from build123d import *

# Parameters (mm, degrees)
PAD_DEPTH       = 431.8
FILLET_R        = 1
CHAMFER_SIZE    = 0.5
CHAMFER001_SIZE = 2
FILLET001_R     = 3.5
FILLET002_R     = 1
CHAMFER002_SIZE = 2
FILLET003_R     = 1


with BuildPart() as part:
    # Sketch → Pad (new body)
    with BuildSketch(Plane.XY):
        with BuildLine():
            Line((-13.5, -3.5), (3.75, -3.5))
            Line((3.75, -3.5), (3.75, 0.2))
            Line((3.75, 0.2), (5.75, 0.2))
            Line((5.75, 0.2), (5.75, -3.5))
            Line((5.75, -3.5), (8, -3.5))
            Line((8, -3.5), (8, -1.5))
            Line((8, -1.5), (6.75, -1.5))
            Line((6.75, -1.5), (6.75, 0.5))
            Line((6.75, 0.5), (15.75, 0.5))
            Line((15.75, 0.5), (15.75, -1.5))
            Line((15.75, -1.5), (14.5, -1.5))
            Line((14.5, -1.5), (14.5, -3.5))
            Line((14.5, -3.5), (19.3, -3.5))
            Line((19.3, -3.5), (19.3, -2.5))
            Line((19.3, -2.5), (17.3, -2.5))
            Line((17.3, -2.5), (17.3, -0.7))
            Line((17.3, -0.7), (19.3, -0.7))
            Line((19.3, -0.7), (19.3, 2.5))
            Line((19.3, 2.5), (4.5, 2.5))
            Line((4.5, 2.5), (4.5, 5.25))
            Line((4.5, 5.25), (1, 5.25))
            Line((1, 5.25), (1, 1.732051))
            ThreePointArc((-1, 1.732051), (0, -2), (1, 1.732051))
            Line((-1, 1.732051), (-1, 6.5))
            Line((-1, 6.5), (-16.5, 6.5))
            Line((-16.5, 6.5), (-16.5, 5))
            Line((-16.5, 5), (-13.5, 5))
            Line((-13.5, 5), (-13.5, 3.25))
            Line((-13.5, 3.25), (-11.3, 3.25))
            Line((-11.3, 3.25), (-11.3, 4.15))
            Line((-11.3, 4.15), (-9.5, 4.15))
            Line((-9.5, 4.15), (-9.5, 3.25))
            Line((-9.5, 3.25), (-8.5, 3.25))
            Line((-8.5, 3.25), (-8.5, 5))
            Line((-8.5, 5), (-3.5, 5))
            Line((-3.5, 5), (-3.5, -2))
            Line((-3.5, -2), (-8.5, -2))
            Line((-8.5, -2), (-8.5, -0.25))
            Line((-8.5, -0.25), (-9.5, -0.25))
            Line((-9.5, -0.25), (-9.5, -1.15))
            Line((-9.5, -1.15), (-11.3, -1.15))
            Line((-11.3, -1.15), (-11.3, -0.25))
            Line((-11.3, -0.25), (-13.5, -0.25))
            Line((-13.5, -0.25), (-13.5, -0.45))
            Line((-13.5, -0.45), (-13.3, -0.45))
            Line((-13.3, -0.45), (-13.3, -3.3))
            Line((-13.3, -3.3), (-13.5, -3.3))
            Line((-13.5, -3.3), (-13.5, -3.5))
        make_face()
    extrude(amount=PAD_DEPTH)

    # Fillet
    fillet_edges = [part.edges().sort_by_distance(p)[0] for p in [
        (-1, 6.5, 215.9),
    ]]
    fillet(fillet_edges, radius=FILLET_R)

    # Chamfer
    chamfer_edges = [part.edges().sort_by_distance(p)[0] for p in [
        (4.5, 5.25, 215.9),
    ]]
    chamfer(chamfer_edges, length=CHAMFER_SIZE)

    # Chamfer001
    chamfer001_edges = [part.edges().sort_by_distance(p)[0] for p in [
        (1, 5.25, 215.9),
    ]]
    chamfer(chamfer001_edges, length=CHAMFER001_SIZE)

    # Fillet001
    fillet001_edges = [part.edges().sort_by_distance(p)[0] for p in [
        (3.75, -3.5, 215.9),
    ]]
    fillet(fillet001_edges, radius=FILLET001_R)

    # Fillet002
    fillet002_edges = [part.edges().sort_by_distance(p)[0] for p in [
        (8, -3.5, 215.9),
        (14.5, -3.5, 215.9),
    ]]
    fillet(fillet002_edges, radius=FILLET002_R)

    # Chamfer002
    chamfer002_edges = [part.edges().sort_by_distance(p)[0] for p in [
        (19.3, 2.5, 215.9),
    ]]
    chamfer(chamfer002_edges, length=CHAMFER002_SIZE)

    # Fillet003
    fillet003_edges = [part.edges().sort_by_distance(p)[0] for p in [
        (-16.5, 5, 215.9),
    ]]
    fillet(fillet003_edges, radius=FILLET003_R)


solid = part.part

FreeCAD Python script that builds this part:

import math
import FreeCAD as App
import Part
import Sketcher

V = App.Vector
Q = App.Units.Quantity


def edges_at(feature, points):
    """Names of the edges that pass closest to the given points."""
    edges = feature.Shape.Edges
    near = lambda p: min(range(len(edges)), key=lambda i: edges[i].distToShape(Part.Vertex(*p))[0])
    return sorted({f"Edge{near(p) + 1}" for p in points})

doc = App.newDocument("Part")
body = doc.addObject("PartDesign::Body", "Body")

# Sketch on XY plane
sketch1 = body.newObject("Sketcher::SketchObject", "Sketch")
sketch1.AttachmentSupport = (doc.getObject("XY_Plane"), [""])
sketch1.MapMode = "FlatFace"
sketch1.addGeometry(Part.LineSegment(V(-13.5, -3.5, 0), V(3.75, -3.5, 0)), False)
sketch1.addGeometry(Part.LineSegment(V(3.75, -3.5, 0), V(3.75, 0.2, 0)), False)
sketch1.addGeometry(Part.LineSegment(V(3.75, 0.2, 0), V(5.75, 0.2, 0)), False)
sketch1.addGeometry(Part.LineSegment(V(5.75, 0.2, 0), V(5.75, -3.5, 0)), False)
sketch1.addGeometry(Part.LineSegment(V(5.75, -3.5, 0), V(8, -3.5, 0)), False)
sketch1.addGeometry(Part.LineSegment(V(8, -3.5, 0), V(8, -1.5, 0)), False)
sketch1.addGeometry(Part.LineSegment(V(8, -1.5, 0), V(6.75, -1.5, 0)), False)
sketch1.addGeometry(Part.LineSegment(V(6.75, -1.5, 0), V(6.75, 0.5, 0)), False)
sketch1.addGeometry(Part.LineSegment(V(6.75, 0.5, 0), V(15.75, 0.5, 0)), False)
sketch1.addGeometry(Part.LineSegment(V(15.75, 0.5, 0), V(15.75, -1.5, 0)), False)
sketch1.addGeometry(Part.LineSegment(V(15.75, -1.5, 0), V(14.5, -1.5, 0)), False)
sketch1.addGeometry(Part.LineSegment(V(14.5, -1.5, 0), V(14.5, -3.5, 0)), False)
sketch1.addGeometry(Part.LineSegment(V(14.5, -3.5, 0), V(19.3, -3.5, 0)), False)
sketch1.addGeometry(Part.LineSegment(V(19.3, -3.5, 0), V(19.3, -2.5, 0)), False)
sketch1.addGeometry(Part.LineSegment(V(19.3, -2.5, 0), V(17.3, -2.5, 0)), False)
sketch1.addGeometry(Part.LineSegment(V(17.3, -2.5, 0), V(17.3, -0.7, 0)), False)
sketch1.addGeometry(Part.LineSegment(V(17.3, -0.7, 0), V(19.3, -0.7, 0)), False)
sketch1.addGeometry(Part.LineSegment(V(19.3, -0.7, 0), V(19.3, 2.5, 0)), False)
sketch1.addGeometry(Part.LineSegment(V(19.3, 2.5, 0), V(4.5, 2.5, 0)), False)
sketch1.addGeometry(Part.LineSegment(V(4.5, 2.5, 0), V(4.5, 5.25, 0)), False)
sketch1.addGeometry(Part.LineSegment(V(4.5, 5.25, 0), V(1, 5.25, 0)), False)
sketch1.addGeometry(Part.LineSegment(V(1, 5.25, 0), V(1, 1.73, 0)), False)
sketch1.addGeometry(Part.ArcOfCircle(Part.Circle(V(0, 0, 0), V(0, 0, 1), 2), math.radians(120), math.radians(420)), False)
sketch1.addGeometry(Part.LineSegment(V(-1, 1.73, 0), V(-1, 6.5, 0)), False)
sketch1.addGeometry(Part.LineSegment(V(-1, 6.5, 0), V(-16.5, 6.5, 0)), False)
sketch1.addGeometry(Part.LineSegment(V(-16.5, 6.5, 0), V(-16.5, 5, 0)), False)
sketch1.addGeometry(Part.LineSegment(V(-16.5, 5, 0), V(-13.5, 5, 0)), False)
sketch1.addGeometry(Part.LineSegment(V(-13.5, 5, 0), V(-13.5, 3.25, 0)), False)
sketch1.addGeometry(Part.LineSegment(V(-13.5, 3.25, 0), V(-11.3, 3.25, 0)), False)
sketch1.addGeometry(Part.LineSegment(V(-11.3, 3.25, 0), V(-11.3, 4.15, 0)), False)
sketch1.addGeometry(Part.LineSegment(V(-11.3, 4.15, 0), V(-9.5, 4.15, 0)), False)
sketch1.addGeometry(Part.LineSegment(V(-9.5, 4.15, 0), V(-9.5, 3.25, 0)), False)
sketch1.addGeometry(Part.LineSegment(V(-9.5, 3.25, 0), V(-8.5, 3.25, 0)), False)
sketch1.addGeometry(Part.LineSegment(V(-8.5, 3.25, 0), V(-8.5, 5, 0)), False)
sketch1.addGeometry(Part.LineSegment(V(-8.5, 5, 0), V(-3.5, 5, 0)), False)
sketch1.addGeometry(Part.LineSegment(V(-3.5, 5, 0), V(-3.5, -2, 0)), False)
sketch1.addGeometry(Part.LineSegment(V(-3.5, -2, 0), V(-8.5, -2, 0)), False)
sketch1.addGeometry(Part.LineSegment(V(-8.5, -2, 0), V(-8.5, -0.25, 0)), False)
sketch1.addGeometry(Part.LineSegment(V(-8.5, -0.25, 0), V(-9.5, -0.25, 0)), False)
sketch1.addGeometry(Part.LineSegment(V(-9.5, -0.25, 0), V(-9.5, -1.15, 0)), False)
sketch1.addGeometry(Part.LineSegment(V(-9.5, -1.15, 0), V(-11.3, -1.15, 0)), False)
sketch1.addGeometry(Part.LineSegment(V(-11.3, -1.15, 0), V(-11.3, -0.25, 0)), False)
sketch1.addGeometry(Part.LineSegment(V(-11.3, -0.25, 0), V(-13.5, -0.25, 0)), False)
sketch1.addGeometry(Part.LineSegment(V(-13.5, -0.25, 0), V(-13.5, -0.45, 0)), False)
sketch1.addGeometry(Part.LineSegment(V(-13.5, -0.45, 0), V(-13.3, -0.45, 0)), False)
sketch1.addGeometry(Part.LineSegment(V(-13.3, -0.45, 0), V(-13.3, -3.3, 0)), False)
sketch1.addGeometry(Part.LineSegment(V(-13.3, -3.3, 0), V(-13.5, -3.3, 0)), False)
sketch1.addGeometry(Part.LineSegment(V(-13.5, -3.3, 0), V(-13.5, -3.5, 0)), False)
sketch1.addConstraint(Sketcher.Constraint("Coincident", 0, 2, 1, 1))
sketch1.addConstraint(Sketcher.Constraint("Coincident", 1, 2, 2, 1))
sketch1.addConstraint(Sketcher.Constraint("Coincident", 2, 2, 3, 1))
sketch1.addConstraint(Sketcher.Constraint("Coincident", 3, 2, 4, 1))
sketch1.addConstraint(Sketcher.Constraint("Coincident", 4, 2, 5, 1))
sketch1.addConstraint(Sketcher.Constraint("Coincident", 5, 2, 6, 1))
sketch1.addConstraint(Sketcher.Constraint("Coincident", 6, 2, 7, 1))
sketch1.addConstraint(Sketcher.Constraint("Coincident", 7, 2, 8, 1))
sketch1.addConstraint(Sketcher.Constraint("Coincident", 8, 2, 9, 1))
sketch1.addConstraint(Sketcher.Constraint("Coincident", 9, 2, 10, 1))
sketch1.addConstraint(Sketcher.Constraint("Coincident", 10, 2, 11, 1))
sketch1.addConstraint(Sketcher.Constraint("Coincident", 11, 2, 12, 1))
sketch1.addConstraint(Sketcher.Constraint("Coincident", 12, 2, 13, 1))
sketch1.addConstraint(Sketcher.Constraint("Coincident", 13, 2, 14, 1))
sketch1.addConstraint(Sketcher.Constraint("Coincident", 14, 2, 15, 1))
sketch1.addConstraint(Sketcher.Constraint("Coincident", 15, 2, 16, 1))
sketch1.addConstraint(Sketcher.Constraint("Coincident", 16, 2, 17, 1))
sketch1.addConstraint(Sketcher.Constraint("Coincident", 17, 2, 18, 1))
sketch1.addConstraint(Sketcher.Constraint("Coincident", 18, 2, 19, 1))
sketch1.addConstraint(Sketcher.Constraint("Coincident", 19, 2, 20, 1))
sketch1.addConstraint(Sketcher.Constraint("Coincident", 20, 2, 21, 1))
sketch1.addConstraint(Sketcher.Constraint("Coincident", 21, 2, 22, 2))
sketch1.addConstraint(Sketcher.Constraint("Coincident", 22, 1, 23, 1))
sketch1.addConstraint(Sketcher.Constraint("Coincident", 23, 2, 24, 1))
sketch1.addConstraint(Sketcher.Constraint("Coincident", 24, 2, 25, 1))
sketch1.addConstraint(Sketcher.Constraint("Coincident", 25, 2, 26, 1))
sketch1.addConstraint(Sketcher.Constraint("Coincident", 26, 2, 27, 1))
sketch1.addConstraint(Sketcher.Constraint("Coincident", 27, 2, 28, 1))
sketch1.addConstraint(Sketcher.Constraint("Coincident", 28, 2, 29, 1))
sketch1.addConstraint(Sketcher.Constraint("Coincident", 29, 2, 30, 1))
sketch1.addConstraint(Sketcher.Constraint("Coincident", 30, 2, 31, 1))
sketch1.addConstraint(Sketcher.Constraint("Coincident", 31, 2, 32, 1))
sketch1.addConstraint(Sketcher.Constraint("Coincident", 32, 2, 33, 1))
sketch1.addConstraint(Sketcher.Constraint("Coincident", 33, 2, 34, 1))
sketch1.addConstraint(Sketcher.Constraint("Coincident", 34, 2, 35, 1))
sketch1.addConstraint(Sketcher.Constraint("Coincident", 35, 2, 36, 1))
sketch1.addConstraint(Sketcher.Constraint("Coincident", 36, 2, 37, 1))
sketch1.addConstraint(Sketcher.Constraint("Coincident", 37, 2, 38, 1))
sketch1.addConstraint(Sketcher.Constraint("Coincident", 38, 2, 39, 1))
sketch1.addConstraint(Sketcher.Constraint("Coincident", 39, 2, 40, 1))
sketch1.addConstraint(Sketcher.Constraint("Coincident", 40, 2, 41, 1))
sketch1.addConstraint(Sketcher.Constraint("Coincident", 41, 2, 42, 1))
sketch1.addConstraint(Sketcher.Constraint("Coincident", 42, 2, 43, 1))
sketch1.addConstraint(Sketcher.Constraint("Coincident", 43, 2, 44, 1))
sketch1.addConstraint(Sketcher.Constraint("Coincident", 44, 2, 45, 1))
sketch1.addConstraint(Sketcher.Constraint("Coincident", 45, 2, 46, 1))
sketch1.addConstraint(Sketcher.Constraint("Coincident", 46, 2, 47, 1))
sketch1.addConstraint(Sketcher.Constraint("Coincident", 47, 2, 0, 1))
sketch1.addConstraint(Sketcher.Constraint("Horizontal", 0))
sketch1.addConstraint(Sketcher.Constraint("Vertical", 1))
sketch1.addConstraint(Sketcher.Constraint("Horizontal", 2))
sketch1.addConstraint(Sketcher.Constraint("Vertical", 3))
sketch1.addConstraint(Sketcher.Constraint("Horizontal", 4))
sketch1.addConstraint(Sketcher.Constraint("Vertical", 5))
sketch1.addConstraint(Sketcher.Constraint("Horizontal", 6))
sketch1.addConstraint(Sketcher.Constraint("Vertical", 7))
sketch1.addConstraint(Sketcher.Constraint("Horizontal", 8))
sketch1.addConstraint(Sketcher.Constraint("Vertical", 9))
sketch1.addConstraint(Sketcher.Constraint("Horizontal", 10))
sketch1.addConstraint(Sketcher.Constraint("Vertical", 11))
sketch1.addConstraint(Sketcher.Constraint("Horizontal", 12))
sketch1.addConstraint(Sketcher.Constraint("Vertical", 13))
sketch1.addConstraint(Sketcher.Constraint("Horizontal", 14))
sketch1.addConstraint(Sketcher.Constraint("Vertical", 15))
sketch1.addConstraint(Sketcher.Constraint("Horizontal", 16))
sketch1.addConstraint(Sketcher.Constraint("Vertical", 17))
sketch1.addConstraint(Sketcher.Constraint("Horizontal", 18))
sketch1.addConstraint(Sketcher.Constraint("Vertical", 19))
sketch1.addConstraint(Sketcher.Constraint("Horizontal", 20))
sketch1.addConstraint(Sketcher.Constraint("Vertical", 21))
sketch1.addConstraint(Sketcher.Constraint("Vertical", 23))
sketch1.addConstraint(Sketcher.Constraint("Horizontal", 24))
sketch1.addConstraint(Sketcher.Constraint("Vertical", 25))
sketch1.addConstraint(Sketcher.Constraint("Horizontal", 26))
sketch1.addConstraint(Sketcher.Constraint("Vertical", 27))
sketch1.addConstraint(Sketcher.Constraint("Horizontal", 28))
sketch1.addConstraint(Sketcher.Constraint("Vertical", 29))
sketch1.addConstraint(Sketcher.Constraint("Horizontal", 30))
sketch1.addConstraint(Sketcher.Constraint("Vertical", 31))
sketch1.addConstraint(Sketcher.Constraint("Horizontal", 32))
sketch1.addConstraint(Sketcher.Constraint("Vertical", 33))
sketch1.addConstraint(Sketcher.Constraint("Horizontal", 34))
sketch1.addConstraint(Sketcher.Constraint("Vertical", 35))
sketch1.addConstraint(Sketcher.Constraint("Horizontal", 36))
sketch1.addConstraint(Sketcher.Constraint("Vertical", 37))
sketch1.addConstraint(Sketcher.Constraint("Horizontal", 38))
sketch1.addConstraint(Sketcher.Constraint("Vertical", 39))
sketch1.addConstraint(Sketcher.Constraint("Horizontal", 40))
sketch1.addConstraint(Sketcher.Constraint("Vertical", 41))
sketch1.addConstraint(Sketcher.Constraint("Horizontal", 42))
sketch1.addConstraint(Sketcher.Constraint("Vertical", 43))
sketch1.addConstraint(Sketcher.Constraint("Horizontal", 44))
sketch1.addConstraint(Sketcher.Constraint("Vertical", 45))
sketch1.addConstraint(Sketcher.Constraint("Horizontal", 46))
sketch1.addConstraint(Sketcher.Constraint("Vertical", 47))
sketch1.addConstraint(Sketcher.Constraint("Coincident", 22, 3, -1, 1))
sketch1.addConstraint(Sketcher.Constraint("Symmetric", 13, 2, 17, 2, -1))
sketch1.addConstraint(Sketcher.Constraint("Horizontal", 0, 2, 3, 2))
sketch1.addConstraint(Sketcher.Constraint("Horizontal", 6, 2, 9, 2))
sketch1.addConstraint(Sketcher.Constraint("Horizontal", 4, 2, 11, 2))
sketch1.addConstraint(Sketcher.Constraint("Horizontal", 21, 2, 22, 1))
sketch1.addConstraint(Sketcher.Constraint("Horizontal", 28, 2, 31, 2))
sketch1.addConstraint(Sketcher.Constraint("Horizontal", 26, 2, 33, 2))
sketch1.addConstraint(Sketcher.Constraint("Horizontal", 38, 2, 41, 2))
sketch1.addConstraint(Sketcher.Constraint("Vertical", 33, 2, 36, 2))
sketch1.addConstraint(Sketcher.Constraint("Vertical", 31, 2, 38, 2))
sketch1.addConstraint(Sketcher.Constraint("Vertical", 29, 2, 40, 2))
sketch1.addConstraint(Sketcher.Constraint("Vertical", 27, 2, 42, 2))
sketch1.addConstraint(Sketcher.Constraint("Vertical", 43, 2, 46, 2))
sketch1.addConstraint(Sketcher.Constraint("Equal", 6, 10))
sketch1.addConstraint(Sketcher.Constraint("Equal", 2, 14))
sketch1.addConstraint(Sketcher.Constraint("Equal", 16, 5))
sketch1.addConstraint(Sketcher.Constraint("Equal", 5, 7))
sketch1.addConstraint(Sketcher.Constraint("Equal", 38, 13))
sketch1.addConstraint(Sketcher.Constraint("Equal", 40, 15))
sketch1.addConstraint(Sketcher.Constraint("Equal", 33, 37))
sketch1.addConstraint(Sketcher.Constraint("Equal", 31, 39))
sketch1.addConstraint(Sketcher.Constraint("Equal", 46, 43))
sketch1.addConstraint(Sketcher.Constraint("Equal", 43, 47))
sketch1.addConstraint(Sketcher.Constraint("Radius", 22, Q("2 mm")))
sketch1.addConstraint(Sketcher.Constraint("DistanceX", 2, 1, 2, 2, Q("2 mm")))
sketch1.addConstraint(Sketcher.Constraint("DistanceX", 8, 1, 8, 2, Q("9 mm")))
sketch1.addConstraint(Sketcher.Constraint("DistanceX", 26, 1, 26, 2, Q("3 mm")))
sketch1.addConstraint(Sketcher.Constraint("DistanceX", 32, 1, 32, 2, Q("1 mm")))
sketch1.addConstraint(Sketcher.Constraint("DistanceX", 34, 1, 34, 2, Q("5 mm")))
sketch1.addConstraint(Sketcher.Constraint("DistanceY", 35, 2, 35, 1, Q("7 mm")))
sketch1.addConstraint(Sketcher.Constraint("DistanceX", 12, 1, 12, 2, Q("4.8 mm")))
sketch1.addConstraint(Sketcher.Constraint("DistanceX", 18, 2, 18, 1, Q("14.8 mm")))
sketch1.addConstraint(Sketcher.Constraint("DistanceX", 20, 2, 20, 1, Q("3.5 mm")))
sketch1.addConstraint(Sketcher.Constraint("DistanceX", 24, 2, 24, 1, Q("15.5 mm")))
sketch1.addConstraint(Sketcher.Constraint("DistanceX", 28, 1, 28, 2, Q("2.2 mm")))
sketch1.addConstraint(Sketcher.Constraint("DistanceX", 30, 1, 30, 2, Q("1.8 mm")))
sketch1.addConstraint(Sketcher.Constraint("DistanceX", 44, 1, 44, 2, Q("0.2 mm")))
sketch1.addConstraint(Sketcher.Constraint("DistanceY", 1, 1, 1, 2, Q("3.7 mm")))
sketch1.addConstraint(Sketcher.Constraint("DistanceY", 17, 1, 17, 2, Q("3.2 mm")))
sketch1.addConstraint(Sketcher.Constraint("DistanceY", 25, 2, 25, 1, Q("1.5 mm")))
sketch1.addConstraint(Sketcher.Constraint("DistanceY", 29, 1, 29, 2, Q("0.9 mm")))
sketch1.addConstraint(Sketcher.Constraint("DistanceX", -1, 1, 4, 2, Q("8 mm")))
sketch1.addConstraint(Sketcher.Constraint("DistanceX", -1, 1, 20, 2, Q("1 mm")))
sketch1.addConstraint(Sketcher.Constraint("DistanceY", -1, 1, 25, 2, Q("5 mm")))
sketch1.addConstraint(Sketcher.Constraint("DistanceX", 2, 2, 6, 2, Q("1 mm")))
sketch1.addConstraint(Sketcher.Constraint("DistanceY", 19, 1, 19, 2, Q("2.75 mm")))
sketch1.addConstraint(Sketcher.Constraint("DistanceY", 27, 2, 27, 1, Q("1.75 mm")))
pad1 = body.newObject("PartDesign::Pad", "Pad")
pad1.Profile = sketch1
pad1.Length = 431.8
doc.recompute()

fillet = body.newObject("PartDesign::Fillet", "Fillet")
fillet.Base = (pad1, edges_at(pad1, [(-1, 6.5, 215.9)]))
fillet.Radius = 1
doc.recompute()

chamfer = body.newObject("PartDesign::Chamfer", "Chamfer")
chamfer.Base = (fillet, edges_at(fillet, [(4.5, 5.25, 215.9)]))
chamfer.Size = 0.5
doc.recompute()

chamfer2 = body.newObject("PartDesign::Chamfer", "Chamfer001")
chamfer2.Base = (chamfer, edges_at(chamfer, [(1, 5.25, 215.9)]))
chamfer2.Size = 2
doc.recompute()

fillet2 = body.newObject("PartDesign::Fillet", "Fillet001")
fillet2.Base = (chamfer2, edges_at(chamfer2, [(3.75, -3.5, 215.9)]))
fillet2.Radius = 3.5
doc.recompute()

fillet3 = body.newObject("PartDesign::Fillet", "Fillet002")
fillet3.Base = (fillet2, edges_at(fillet2, [(8, -3.5, 215.9), (14.5, -3.5, 215.9)]))
fillet3.Radius = 1
doc.recompute()

chamfer3 = body.newObject("PartDesign::Chamfer", "Chamfer002")
chamfer3.Base = (fillet3, edges_at(fillet3, [(19.3, 2.5, 215.9)]))
chamfer3.Size = 2
doc.recompute()

fillet4 = body.newObject("PartDesign::Fillet", "Fillet003")
fillet4.Base = (chamfer3, edges_at(chamfer3, [(-16.5, 5, 215.9)]))
fillet4.Radius = 1

doc.recompute()
